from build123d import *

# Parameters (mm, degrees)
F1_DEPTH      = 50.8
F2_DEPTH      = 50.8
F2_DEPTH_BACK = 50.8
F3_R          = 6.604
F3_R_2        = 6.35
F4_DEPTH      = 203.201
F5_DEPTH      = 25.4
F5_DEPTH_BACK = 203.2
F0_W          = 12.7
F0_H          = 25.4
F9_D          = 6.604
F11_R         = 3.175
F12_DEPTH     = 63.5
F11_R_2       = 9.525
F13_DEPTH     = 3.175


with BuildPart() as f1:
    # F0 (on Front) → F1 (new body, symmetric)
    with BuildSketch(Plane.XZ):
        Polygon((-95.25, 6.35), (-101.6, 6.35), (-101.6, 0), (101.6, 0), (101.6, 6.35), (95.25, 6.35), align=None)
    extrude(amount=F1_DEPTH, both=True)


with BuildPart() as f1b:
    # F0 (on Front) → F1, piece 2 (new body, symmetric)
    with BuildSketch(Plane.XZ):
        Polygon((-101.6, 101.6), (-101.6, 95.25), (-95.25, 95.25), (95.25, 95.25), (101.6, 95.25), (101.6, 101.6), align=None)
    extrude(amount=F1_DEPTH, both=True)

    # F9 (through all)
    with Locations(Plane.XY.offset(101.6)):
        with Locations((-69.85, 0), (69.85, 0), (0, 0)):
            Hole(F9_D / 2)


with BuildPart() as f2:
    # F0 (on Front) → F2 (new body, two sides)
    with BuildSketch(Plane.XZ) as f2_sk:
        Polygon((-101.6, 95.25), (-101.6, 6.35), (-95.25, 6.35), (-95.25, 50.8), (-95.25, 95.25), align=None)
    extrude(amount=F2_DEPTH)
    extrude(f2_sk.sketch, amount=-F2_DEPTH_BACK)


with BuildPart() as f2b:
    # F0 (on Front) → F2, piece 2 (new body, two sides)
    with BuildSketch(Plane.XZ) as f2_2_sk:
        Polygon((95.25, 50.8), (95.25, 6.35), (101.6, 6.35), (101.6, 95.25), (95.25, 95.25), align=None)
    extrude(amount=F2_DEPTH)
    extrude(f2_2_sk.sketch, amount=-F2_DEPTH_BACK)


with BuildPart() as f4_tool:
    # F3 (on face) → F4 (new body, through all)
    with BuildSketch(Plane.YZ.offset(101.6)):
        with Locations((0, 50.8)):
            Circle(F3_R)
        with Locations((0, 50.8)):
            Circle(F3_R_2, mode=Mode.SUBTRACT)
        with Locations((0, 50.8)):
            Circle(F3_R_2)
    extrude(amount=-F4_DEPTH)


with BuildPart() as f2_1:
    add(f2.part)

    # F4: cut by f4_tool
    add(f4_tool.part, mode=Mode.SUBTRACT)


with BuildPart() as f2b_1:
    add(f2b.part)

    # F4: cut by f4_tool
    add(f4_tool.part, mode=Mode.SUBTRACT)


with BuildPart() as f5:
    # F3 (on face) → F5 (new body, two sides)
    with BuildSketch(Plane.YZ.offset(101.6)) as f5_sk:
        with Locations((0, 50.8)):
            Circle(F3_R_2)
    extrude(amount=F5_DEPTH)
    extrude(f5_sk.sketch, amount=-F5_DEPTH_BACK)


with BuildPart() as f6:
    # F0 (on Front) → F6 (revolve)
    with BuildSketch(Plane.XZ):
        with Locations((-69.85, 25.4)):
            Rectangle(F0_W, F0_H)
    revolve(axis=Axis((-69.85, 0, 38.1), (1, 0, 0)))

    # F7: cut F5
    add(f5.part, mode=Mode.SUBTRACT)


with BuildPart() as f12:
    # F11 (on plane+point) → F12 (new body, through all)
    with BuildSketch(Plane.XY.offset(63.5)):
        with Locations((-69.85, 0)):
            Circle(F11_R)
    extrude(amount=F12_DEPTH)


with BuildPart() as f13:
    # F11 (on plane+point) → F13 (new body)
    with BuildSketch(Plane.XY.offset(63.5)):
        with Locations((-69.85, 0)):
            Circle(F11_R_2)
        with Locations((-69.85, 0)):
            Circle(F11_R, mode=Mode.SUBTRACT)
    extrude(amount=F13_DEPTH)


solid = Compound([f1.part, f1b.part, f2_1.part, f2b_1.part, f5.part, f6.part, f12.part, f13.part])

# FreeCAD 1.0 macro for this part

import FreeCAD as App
import Part
import Sketcher
from FreeCAD import Vector
Q = App.Units.Quantity


def add_polygon(sketch, points):
    """Adds a closed chain of lines whose ends are joined by coincident constraints."""
    first, n = sketch.GeometryCount, len(points)
    for a, b in zip(points, points[1:] + points[:1]):
        sketch.addGeometry(Part.LineSegment(App.Vector(*a, 0), App.Vector(*b, 0)), False)
    for i in range(n):
        sketch.addConstraint(Sketcher.Constraint("Coincident", first + i, 2, first + (i + 1) % n, 1))

doc = App.newDocument("Part")
params = doc.addObject("Spreadsheet::Sheet", "Params")
for row, (alias, value) in enumerate([
    ("sketch1_width", "8 in"),
    ("sketch1_height", "0.25 in"),
    ("pad1_length", "4 in"),
    ("sketch2_width", "8 in"),
    ("sketch2_height", "0.25 in"),
    ("pad2_length", "4 in"),
    ("sketch3_diameter", "0.26 in"),
    ("hole_diameter", "0.26 in"),
    ("sketch4_height", "3.5 in"),
    ("sketch4_width", "0.25 in"),
    ("pad3_length", "2 in"),
    ("pad3_length2", "2 in"),
    ("sketch5_height", "3.5 in"),
    ("sketch5_width", "0.25 in"),
    ("pad4_length", "2 in"),
    ("pad4_length2", "2 in"),
    ("sketch6_diameter", "0.52 in"),
    ("pad5_length", "203.201 mm"),
    ("sketch7_diameter", "0.5 in"),
    ("pad6_length", "1 in"),
    ("pad6_length2", "8 in"),
    ("sketch8_height", "1 in"),
    ("sketch8_width", "0.5 in"),
    ("revolution_angle", "360 deg"),
    ("sketch9_diameter", "0.25 in"),
    ("pad7_length", "2.5 in"),
    ("sketch10_diameter", "0.75 in"),
    ("sketch10_diameter2", "0.25 in"),
    ("pad8_length", "0.125 in"),
], start=1):
    params.set(f"A{row}", alias)
    params.set(f"B{row}", "=" + value)
    params.setAlias(f"B{row}", alias)

body = doc.addObject("PartDesign::Body", "Body")

sketch1 = body.newObject("Sketcher::SketchObject", "Sketch")
sketch1.AttachmentSupport = (doc.getObject("XZ_Plane"), [""])
sketch1.MapMode = "FlatFace"
add_polygon(sketch1, [(-102, 6), (-102, 0), (102, 0), (102, 6)])
sketch1.addConstraint([
    Sketcher.Constraint("Vertical", 0),
    Sketcher.Constraint("Horizontal", 1),
    Sketcher.Constraint("Vertical", 2),
    Sketcher.Constraint("Horizontal", 3),
    Sketcher.Constraint("Symmetric", 0, 2, 1, 2, -1, 1),
    Sketcher.Constraint("DistanceX", 1, 1, 1, 2, Q("8 in")),
    Sketcher.Constraint("DistanceY", 0, 2, 0, 1, Q("0.25 in")),
])
sketch1.setExpression("Constraints[9]", "Params.sketch1_width")
sketch1.setExpression("Constraints[10]", "Params.sketch1_height")
pad1 = body.newObject("PartDesign::Pad", "Pad")
pad1.Profile = sketch1
pad1.setExpression("Length", "Params.pad1_length")
pad1.Midplane = True
body2 = doc.addObject("PartDesign::Body", "Body001")

sketch2 = body2.newObject("Sketcher::SketchObject", "Sketch001")
sketch2.AttachmentSupport = (doc.getObject("XZ_Plane001"), [""])
sketch2.MapMode = "FlatFace"
add_polygon(sketch2, [(-102, 102), (-102, 95), (102, 95), (102, 102)])
sketch2.addConstraint([
    Sketcher.Constraint("Vertical", 0),
    Sketcher.Constraint("Horizontal", 1),
    Sketcher.Constraint("Vertical", 2),
    Sketcher.Constraint("Horizontal", 3),
    Sketcher.Constraint("DistanceX", 1, 1, 1, 2, Q("8 in")),
    Sketcher.Constraint("DistanceX", 0, 2, -1, 1, Q("4 in")),
    Sketcher.Constraint("DistanceY", -1, 1, 2, 2, Q("4 in")),
    Sketcher.Constraint("DistanceY", 0, 2, 0, 1, Q("0.25 in")),
])
sketch2.setExpression("Constraints[8]", "Params.sketch2_width")
sketch2.setExpression("Constraints[11]", "Params.sketch2_height")
pad2 = body2.newObject("PartDesign::Pad", "Pad001")
pad2.Profile = sketch2
pad2.setExpression("Length", "Params.pad2_length")
pad2.Midplane = True

sketch3 = body2.newObject("Sketcher::SketchObject", "Sketch002")
sketch3.AttachmentSupport = (doc.getObject("XY_Plane001"), [""])
sketch3.MapMode = "FlatFace"
sketch3.AttachmentOffset = App.Placement(Vector(0, 0, 4 * 25.4), App.Rotation())
sketch3.addGeometry([
    Part.Circle(Vector(-69.8, 0, 0), Vector(0, 0, 1), 3.3),
    Part.Circle(Vector(69.8, 0, 0), Vector(0, 0, 1), 3.3),
    Part.Circle(Vector(0, 0, 0), Vector(0, 0, 1), 3.3),
], False)
sketch3.addConstraint([
    Sketcher.Constraint("Coincident", 2, 3, -1, 1),
    Sketcher.Constraint("Equal", 0, 1),
    Sketcher.Constraint("Equal", 1, 2),
    Sketcher.Constraint("Symmetric", 0, 3, 1, 3, -1, 1),
    Sketcher.Constraint("PointOnObject", 0, 3, -1),
    Sketcher.Constraint("Diameter", 0, Q("0.26 in")),
    Sketcher.Constraint("DistanceX", 0, 3, 1, 3, Q("5.5 in")),
])
sketch3.setExpression("Constraints[5]", "Params.sketch3_diameter")
doc.recompute()
hole = body2.newObject("PartDesign::Hole", "Hole")
hole.Profile = sketch3
hole.ThreadType = "None"
hole.setExpression("Diameter", "Params.hole_diameter")
hole.DepthType = "ThroughAll"
body3 = doc.addObject("PartDesign::Body", "Body002")

sketch4 = body3.newObject("Sketcher::SketchObject", "Sketch003")
sketch4.AttachmentSupport = (doc.getObject("XZ_Plane002"), [""])
sketch4.MapMode = "FlatFace"
add_polygon(sketch4, [(-102, 95), (-102, 6), (-95, 6), (-95, 95)])
sketch4.addConstraint([
    Sketcher.Constraint("Vertical", 0),
    Sketcher.Constraint("Horizontal", 1),
    Sketcher.Constraint("Vertical", 2),
    Sketcher.Constraint("Horizontal", 3),
    Sketcher.Constraint("DistanceY", 0, 2, 0, 1, Q("3.5 in")),
    Sketcher.Constraint("DistanceX", 0, 2, -1, 1, Q("4 in")),
    Sketcher.Constraint("DistanceX", 1, 1, 1, 2, Q("0.25 in")),
    Sketcher.Constraint("DistanceY", -1, 1, 0, 2, Q("0.25 in")),
])
sketch4.setExpression("Constraints[8]", "Params.sketch4_height")
sketch4.setExpression("Constraints[10]", "Params.sketch4_width")
pad3 = body3.newObject("PartDesign::Pad", "Pad002")
pad3.Profile = sketch4
pad3.Type = "TwoLengths"
pad3.setExpression("Length", "Params.pad3_length")
pad3.setExpression("Length2", "Params.pad3_length2")
body4 = doc.addObject("PartDesign::Body", "Body003")

sketch5 = body4.newObject("Sketcher::SketchObject", "Sketch004")
sketch5.AttachmentSupport = (doc.getObject("XZ_Plane003"), [""])
sketch5.MapMode = "FlatFace"
add_polygon(sketch5, [(95, 6), (102, 6), (102, 95), (95, 95)])
sketch5.addConstraint([
    Sketcher.Constraint("Horizontal", 0),
    Sketcher.Constraint("Vertical", 1),
    Sketcher.Constraint("Horizontal", 2),
    Sketcher.Constraint("Vertical", 3),
    Sketcher.Constraint("DistanceY", 1, 1, 1, 2, Q("3.5 in")),
    Sketcher.Constraint("DistanceX", -1, 1, 0, 2, Q("4 in")),
    Sketcher.Constraint("DistanceX", 0, 1, 0, 2, Q("0.25 in")),
    Sketcher.Constraint("DistanceY", -1, 1, 0, 2, Q("0.25 in")),
])
sketch5.setExpression("Constraints[8]", "Params.sketch5_height")
sketch5.setExpression("Constraints[10]", "Params.sketch5_width")
pad4 = body4.newObject("PartDesign::Pad", "Pad003")
pad4.Profile = sketch5
pad4.Type = "TwoLengths"
pad4.setExpression("Length", "Params.pad4_length")
pad4.setExpression("Length2", "Params.pad4_length2")
body5 = doc.addObject("PartDesign::Body", "Body004")

sketch6 = body5.newObject("Sketcher::SketchObject", "Sketch005")
sketch6.AttachmentSupport = (doc.getObject("YZ_Plane004"), [""])
sketch6.MapMode = "FlatFace"
sketch6.AttachmentOffset = App.Placement(Vector(0, 0, 4 * 25.4), App.Rotation())
sketch6.addGeometry(Part.Circle(Vector(0, 51, 0), Vector(0, 0, 1), 7), False)
sketch6.addConstraint([
    Sketcher.Constraint("PointOnObject", 0, 3, -2),
    Sketcher.Constraint("Diameter", 0, Q("0.52 in")),
    Sketcher.Constraint("DistanceY", -1, 1, 0, 3, Q("2 in")),
])
sketch6.setExpression("Constraints[1]", "Params.sketch6_diameter")
pad5 = body5.newObject("PartDesign::Pad", "Pad004")
pad5.Profile = sketch6
pad5.setExpression("Length", "Params.pad5_length")
pad5.Reversed = True
doc.recompute()

body6 = doc.addObject("PartDesign::Body", "Body005")
body6.BaseFeature = body5
boolean = body3.newObject("PartDesign::Boolean", "Boolean")
boolean.Type = "Cut"
boolean.addObjects([body6])
doc.recompute()

boolean2 = body4.newObject("PartDesign::Boolean", "Boolean001")
boolean2.Type = "Cut"
boolean2.addObjects([body5])
body7 = doc.addObject("PartDesign::Body", "Body006")

sketch7 = body7.newObject("Sketcher::SketchObject", "Sketch006")
sketch7.AttachmentSupport = (doc.getObject("YZ_Plane006"), [""])
sketch7.MapMode = "FlatFace"
sketch7.AttachmentOffset = App.Placement(Vector(0, 0, 4 * 25.4), App.Rotation())
sketch7.addGeometry(Part.Circle(Vector(0, 51, 0), Vector(0, 0, 1), 6), False)
sketch7.addConstraint([
    Sketcher.Constraint("PointOnObject", 0, 3, -2),
    Sketcher.Constraint("Diameter", 0, Q("0.5 in")),
    Sketcher.Constraint("DistanceY", -1, 1, 0, 3, Q("2 in")),
])
sketch7.setExpression("Constraints[1]", "Params.sketch7_diameter")
pad6 = body7.newObject("PartDesign::Pad", "Pad005")
pad6.Profile = sketch7
pad6.Type = "TwoLengths"
pad6.setExpression("Length", "Params.pad6_length")
pad6.setExpression("Length2", "Params.pad6_length2")
body8 = doc.addObject("PartDesign::Body", "Body007")

sketch8 = body8.newObject("Sketcher::SketchObject", "Sketch007")
sketch8.AttachmentSupport = (doc.getObject("XZ_Plane007"), [""])
sketch8.MapMode = "FlatFace"
add_polygon(sketch8, [(-76, 38), (-76, 13), (-64, 13), (-64, 38)])
sketch8.addGeometry(Part.LineSegment(Vector(-76, 38, 0), Vector(-64, 38, 0)), True)
sketch8.addConstraint([
    Sketcher.Constraint("Vertical", 0),
    Sketcher.Constraint("Horizontal", 1),
    Sketcher.Constraint("Vertical", 2),
    Sketcher.Constraint("Horizontal", 3),
    Sketcher.Constraint("Horizontal", 4),
    Sketcher.Constraint("Coincident", 4, 1, 3, 2),
    Sketcher.Constraint("Vertical", 1, 2, 4, 2),
    Sketcher.Constraint("DistanceY", 0, 2, 0, 1, Q("1 in")),
    Sketcher.Constraint("DistanceX", 1, 1, 1, 2, Q("0.5 in")),
    Sketcher.Constraint("DistanceX", 0, 2, -1, 1, Q("3 in")),
    Sketcher.Constraint("DistanceY", -1, 1, 0, 2, Q("0.5 in")),
])
sketch8.setExpression("Constraints[11]", "Params.sketch8_height")
sketch8.setExpression("Constraints[12]", "Params.sketch8_width")
revolution = body8.newObject("PartDesign::Revolution", "Revolution")
revolution.Profile = sketch8
revolution.ReferenceAxis = (sketch8, ["Axis0"])
revolution.setExpression("Angle", "Params.revolution_angle")
doc.recompute()

body9 = doc.addObject("PartDesign::Body", "Body008")
body9.BaseFeature = body7
boolean3 = body8.newObject("PartDesign::Boolean", "Boolean002")
boolean3.Type = "Cut"
boolean3.addObjects([body9])
doc.recompute()
body10 = doc.addObject("PartDesign::Body", "Body009")

sketch9 = body10.newObject("Sketcher::SketchObject", "Sketch008")
sketch9.AttachmentSupport = (doc.getObject("XY_Plane009"), [""])
sketch9.MapMode = "FlatFace"
sketch9.AttachmentOffset = App.Placement(Vector(0, 0, 2.5 * 25.4), App.Rotation())
sketch9.addGeometry(Part.Circle(Vector(-69.8, 0, 0), Vector(0, 0, 1), 3.2), False)
sketch9.addConstraint([
    Sketcher.Constraint("PointOnObject", 0, 3, -1),
    Sketcher.Constraint("Diameter", 0, Q("0.25 in")),
    Sketcher.Constraint("DistanceX", 0, 3, -1, 1, Q("2.75 in")),
])
sketch9.setExpression("Constraints[1]", "Params.sketch9_diameter")
pad7 = body10.newObject("PartDesign::Pad", "Pad006")
pad7.Profile = sketch9
pad7.setExpression("Length", "Params.pad7_length")
body11 = doc.addObject("PartDesign::Body", "Body010")

sketch10 = body11.newObject("Sketcher::SketchObject", "Sketch009")
sketch10.AttachmentSupport = (doc.getObject("XY_Plane010"), [""])
sketch10.MapMode = "FlatFace"
sketch10.AttachmentOffset = App.Placement(Vector(0, 0, 2.5 * 25.4), App.Rotation())
sketch10.addGeometry([
    Part.Circle(Vector(-69.8, 0, 0), Vector(0, 0, 1), 9.5),
    Part.Circle(Vector(-69.8, 0, 0), Vector(0, 0, 1), 3.2),
], False)
sketch10.addConstraint([
    Sketcher.Constraint("Coincident", 1, 3, 0, 3),
    Sketcher.Constraint("PointOnObject", 0, 3, -1),
    Sketcher.Constraint("Diameter", 0, Q("0.75 in")),
    Sketcher.Constraint("Diameter", 1, Q("0.25 in")),
    Sketcher.Constraint("DistanceX", 0, 3, -1, 1, Q("2.75 in")),
])
sketch10.setExpression("Constraints[2]", "Params.sketch10_diameter")
sketch10.setExpression("Constraints[3]", "Params.sketch10_diameter2")
pad8 = body11.newObject("PartDesign::Pad", "Pad007")
pad8.Profile = sketch10
pad8.setExpression("Length", "Params.pad8_length")

doc.recompute()
